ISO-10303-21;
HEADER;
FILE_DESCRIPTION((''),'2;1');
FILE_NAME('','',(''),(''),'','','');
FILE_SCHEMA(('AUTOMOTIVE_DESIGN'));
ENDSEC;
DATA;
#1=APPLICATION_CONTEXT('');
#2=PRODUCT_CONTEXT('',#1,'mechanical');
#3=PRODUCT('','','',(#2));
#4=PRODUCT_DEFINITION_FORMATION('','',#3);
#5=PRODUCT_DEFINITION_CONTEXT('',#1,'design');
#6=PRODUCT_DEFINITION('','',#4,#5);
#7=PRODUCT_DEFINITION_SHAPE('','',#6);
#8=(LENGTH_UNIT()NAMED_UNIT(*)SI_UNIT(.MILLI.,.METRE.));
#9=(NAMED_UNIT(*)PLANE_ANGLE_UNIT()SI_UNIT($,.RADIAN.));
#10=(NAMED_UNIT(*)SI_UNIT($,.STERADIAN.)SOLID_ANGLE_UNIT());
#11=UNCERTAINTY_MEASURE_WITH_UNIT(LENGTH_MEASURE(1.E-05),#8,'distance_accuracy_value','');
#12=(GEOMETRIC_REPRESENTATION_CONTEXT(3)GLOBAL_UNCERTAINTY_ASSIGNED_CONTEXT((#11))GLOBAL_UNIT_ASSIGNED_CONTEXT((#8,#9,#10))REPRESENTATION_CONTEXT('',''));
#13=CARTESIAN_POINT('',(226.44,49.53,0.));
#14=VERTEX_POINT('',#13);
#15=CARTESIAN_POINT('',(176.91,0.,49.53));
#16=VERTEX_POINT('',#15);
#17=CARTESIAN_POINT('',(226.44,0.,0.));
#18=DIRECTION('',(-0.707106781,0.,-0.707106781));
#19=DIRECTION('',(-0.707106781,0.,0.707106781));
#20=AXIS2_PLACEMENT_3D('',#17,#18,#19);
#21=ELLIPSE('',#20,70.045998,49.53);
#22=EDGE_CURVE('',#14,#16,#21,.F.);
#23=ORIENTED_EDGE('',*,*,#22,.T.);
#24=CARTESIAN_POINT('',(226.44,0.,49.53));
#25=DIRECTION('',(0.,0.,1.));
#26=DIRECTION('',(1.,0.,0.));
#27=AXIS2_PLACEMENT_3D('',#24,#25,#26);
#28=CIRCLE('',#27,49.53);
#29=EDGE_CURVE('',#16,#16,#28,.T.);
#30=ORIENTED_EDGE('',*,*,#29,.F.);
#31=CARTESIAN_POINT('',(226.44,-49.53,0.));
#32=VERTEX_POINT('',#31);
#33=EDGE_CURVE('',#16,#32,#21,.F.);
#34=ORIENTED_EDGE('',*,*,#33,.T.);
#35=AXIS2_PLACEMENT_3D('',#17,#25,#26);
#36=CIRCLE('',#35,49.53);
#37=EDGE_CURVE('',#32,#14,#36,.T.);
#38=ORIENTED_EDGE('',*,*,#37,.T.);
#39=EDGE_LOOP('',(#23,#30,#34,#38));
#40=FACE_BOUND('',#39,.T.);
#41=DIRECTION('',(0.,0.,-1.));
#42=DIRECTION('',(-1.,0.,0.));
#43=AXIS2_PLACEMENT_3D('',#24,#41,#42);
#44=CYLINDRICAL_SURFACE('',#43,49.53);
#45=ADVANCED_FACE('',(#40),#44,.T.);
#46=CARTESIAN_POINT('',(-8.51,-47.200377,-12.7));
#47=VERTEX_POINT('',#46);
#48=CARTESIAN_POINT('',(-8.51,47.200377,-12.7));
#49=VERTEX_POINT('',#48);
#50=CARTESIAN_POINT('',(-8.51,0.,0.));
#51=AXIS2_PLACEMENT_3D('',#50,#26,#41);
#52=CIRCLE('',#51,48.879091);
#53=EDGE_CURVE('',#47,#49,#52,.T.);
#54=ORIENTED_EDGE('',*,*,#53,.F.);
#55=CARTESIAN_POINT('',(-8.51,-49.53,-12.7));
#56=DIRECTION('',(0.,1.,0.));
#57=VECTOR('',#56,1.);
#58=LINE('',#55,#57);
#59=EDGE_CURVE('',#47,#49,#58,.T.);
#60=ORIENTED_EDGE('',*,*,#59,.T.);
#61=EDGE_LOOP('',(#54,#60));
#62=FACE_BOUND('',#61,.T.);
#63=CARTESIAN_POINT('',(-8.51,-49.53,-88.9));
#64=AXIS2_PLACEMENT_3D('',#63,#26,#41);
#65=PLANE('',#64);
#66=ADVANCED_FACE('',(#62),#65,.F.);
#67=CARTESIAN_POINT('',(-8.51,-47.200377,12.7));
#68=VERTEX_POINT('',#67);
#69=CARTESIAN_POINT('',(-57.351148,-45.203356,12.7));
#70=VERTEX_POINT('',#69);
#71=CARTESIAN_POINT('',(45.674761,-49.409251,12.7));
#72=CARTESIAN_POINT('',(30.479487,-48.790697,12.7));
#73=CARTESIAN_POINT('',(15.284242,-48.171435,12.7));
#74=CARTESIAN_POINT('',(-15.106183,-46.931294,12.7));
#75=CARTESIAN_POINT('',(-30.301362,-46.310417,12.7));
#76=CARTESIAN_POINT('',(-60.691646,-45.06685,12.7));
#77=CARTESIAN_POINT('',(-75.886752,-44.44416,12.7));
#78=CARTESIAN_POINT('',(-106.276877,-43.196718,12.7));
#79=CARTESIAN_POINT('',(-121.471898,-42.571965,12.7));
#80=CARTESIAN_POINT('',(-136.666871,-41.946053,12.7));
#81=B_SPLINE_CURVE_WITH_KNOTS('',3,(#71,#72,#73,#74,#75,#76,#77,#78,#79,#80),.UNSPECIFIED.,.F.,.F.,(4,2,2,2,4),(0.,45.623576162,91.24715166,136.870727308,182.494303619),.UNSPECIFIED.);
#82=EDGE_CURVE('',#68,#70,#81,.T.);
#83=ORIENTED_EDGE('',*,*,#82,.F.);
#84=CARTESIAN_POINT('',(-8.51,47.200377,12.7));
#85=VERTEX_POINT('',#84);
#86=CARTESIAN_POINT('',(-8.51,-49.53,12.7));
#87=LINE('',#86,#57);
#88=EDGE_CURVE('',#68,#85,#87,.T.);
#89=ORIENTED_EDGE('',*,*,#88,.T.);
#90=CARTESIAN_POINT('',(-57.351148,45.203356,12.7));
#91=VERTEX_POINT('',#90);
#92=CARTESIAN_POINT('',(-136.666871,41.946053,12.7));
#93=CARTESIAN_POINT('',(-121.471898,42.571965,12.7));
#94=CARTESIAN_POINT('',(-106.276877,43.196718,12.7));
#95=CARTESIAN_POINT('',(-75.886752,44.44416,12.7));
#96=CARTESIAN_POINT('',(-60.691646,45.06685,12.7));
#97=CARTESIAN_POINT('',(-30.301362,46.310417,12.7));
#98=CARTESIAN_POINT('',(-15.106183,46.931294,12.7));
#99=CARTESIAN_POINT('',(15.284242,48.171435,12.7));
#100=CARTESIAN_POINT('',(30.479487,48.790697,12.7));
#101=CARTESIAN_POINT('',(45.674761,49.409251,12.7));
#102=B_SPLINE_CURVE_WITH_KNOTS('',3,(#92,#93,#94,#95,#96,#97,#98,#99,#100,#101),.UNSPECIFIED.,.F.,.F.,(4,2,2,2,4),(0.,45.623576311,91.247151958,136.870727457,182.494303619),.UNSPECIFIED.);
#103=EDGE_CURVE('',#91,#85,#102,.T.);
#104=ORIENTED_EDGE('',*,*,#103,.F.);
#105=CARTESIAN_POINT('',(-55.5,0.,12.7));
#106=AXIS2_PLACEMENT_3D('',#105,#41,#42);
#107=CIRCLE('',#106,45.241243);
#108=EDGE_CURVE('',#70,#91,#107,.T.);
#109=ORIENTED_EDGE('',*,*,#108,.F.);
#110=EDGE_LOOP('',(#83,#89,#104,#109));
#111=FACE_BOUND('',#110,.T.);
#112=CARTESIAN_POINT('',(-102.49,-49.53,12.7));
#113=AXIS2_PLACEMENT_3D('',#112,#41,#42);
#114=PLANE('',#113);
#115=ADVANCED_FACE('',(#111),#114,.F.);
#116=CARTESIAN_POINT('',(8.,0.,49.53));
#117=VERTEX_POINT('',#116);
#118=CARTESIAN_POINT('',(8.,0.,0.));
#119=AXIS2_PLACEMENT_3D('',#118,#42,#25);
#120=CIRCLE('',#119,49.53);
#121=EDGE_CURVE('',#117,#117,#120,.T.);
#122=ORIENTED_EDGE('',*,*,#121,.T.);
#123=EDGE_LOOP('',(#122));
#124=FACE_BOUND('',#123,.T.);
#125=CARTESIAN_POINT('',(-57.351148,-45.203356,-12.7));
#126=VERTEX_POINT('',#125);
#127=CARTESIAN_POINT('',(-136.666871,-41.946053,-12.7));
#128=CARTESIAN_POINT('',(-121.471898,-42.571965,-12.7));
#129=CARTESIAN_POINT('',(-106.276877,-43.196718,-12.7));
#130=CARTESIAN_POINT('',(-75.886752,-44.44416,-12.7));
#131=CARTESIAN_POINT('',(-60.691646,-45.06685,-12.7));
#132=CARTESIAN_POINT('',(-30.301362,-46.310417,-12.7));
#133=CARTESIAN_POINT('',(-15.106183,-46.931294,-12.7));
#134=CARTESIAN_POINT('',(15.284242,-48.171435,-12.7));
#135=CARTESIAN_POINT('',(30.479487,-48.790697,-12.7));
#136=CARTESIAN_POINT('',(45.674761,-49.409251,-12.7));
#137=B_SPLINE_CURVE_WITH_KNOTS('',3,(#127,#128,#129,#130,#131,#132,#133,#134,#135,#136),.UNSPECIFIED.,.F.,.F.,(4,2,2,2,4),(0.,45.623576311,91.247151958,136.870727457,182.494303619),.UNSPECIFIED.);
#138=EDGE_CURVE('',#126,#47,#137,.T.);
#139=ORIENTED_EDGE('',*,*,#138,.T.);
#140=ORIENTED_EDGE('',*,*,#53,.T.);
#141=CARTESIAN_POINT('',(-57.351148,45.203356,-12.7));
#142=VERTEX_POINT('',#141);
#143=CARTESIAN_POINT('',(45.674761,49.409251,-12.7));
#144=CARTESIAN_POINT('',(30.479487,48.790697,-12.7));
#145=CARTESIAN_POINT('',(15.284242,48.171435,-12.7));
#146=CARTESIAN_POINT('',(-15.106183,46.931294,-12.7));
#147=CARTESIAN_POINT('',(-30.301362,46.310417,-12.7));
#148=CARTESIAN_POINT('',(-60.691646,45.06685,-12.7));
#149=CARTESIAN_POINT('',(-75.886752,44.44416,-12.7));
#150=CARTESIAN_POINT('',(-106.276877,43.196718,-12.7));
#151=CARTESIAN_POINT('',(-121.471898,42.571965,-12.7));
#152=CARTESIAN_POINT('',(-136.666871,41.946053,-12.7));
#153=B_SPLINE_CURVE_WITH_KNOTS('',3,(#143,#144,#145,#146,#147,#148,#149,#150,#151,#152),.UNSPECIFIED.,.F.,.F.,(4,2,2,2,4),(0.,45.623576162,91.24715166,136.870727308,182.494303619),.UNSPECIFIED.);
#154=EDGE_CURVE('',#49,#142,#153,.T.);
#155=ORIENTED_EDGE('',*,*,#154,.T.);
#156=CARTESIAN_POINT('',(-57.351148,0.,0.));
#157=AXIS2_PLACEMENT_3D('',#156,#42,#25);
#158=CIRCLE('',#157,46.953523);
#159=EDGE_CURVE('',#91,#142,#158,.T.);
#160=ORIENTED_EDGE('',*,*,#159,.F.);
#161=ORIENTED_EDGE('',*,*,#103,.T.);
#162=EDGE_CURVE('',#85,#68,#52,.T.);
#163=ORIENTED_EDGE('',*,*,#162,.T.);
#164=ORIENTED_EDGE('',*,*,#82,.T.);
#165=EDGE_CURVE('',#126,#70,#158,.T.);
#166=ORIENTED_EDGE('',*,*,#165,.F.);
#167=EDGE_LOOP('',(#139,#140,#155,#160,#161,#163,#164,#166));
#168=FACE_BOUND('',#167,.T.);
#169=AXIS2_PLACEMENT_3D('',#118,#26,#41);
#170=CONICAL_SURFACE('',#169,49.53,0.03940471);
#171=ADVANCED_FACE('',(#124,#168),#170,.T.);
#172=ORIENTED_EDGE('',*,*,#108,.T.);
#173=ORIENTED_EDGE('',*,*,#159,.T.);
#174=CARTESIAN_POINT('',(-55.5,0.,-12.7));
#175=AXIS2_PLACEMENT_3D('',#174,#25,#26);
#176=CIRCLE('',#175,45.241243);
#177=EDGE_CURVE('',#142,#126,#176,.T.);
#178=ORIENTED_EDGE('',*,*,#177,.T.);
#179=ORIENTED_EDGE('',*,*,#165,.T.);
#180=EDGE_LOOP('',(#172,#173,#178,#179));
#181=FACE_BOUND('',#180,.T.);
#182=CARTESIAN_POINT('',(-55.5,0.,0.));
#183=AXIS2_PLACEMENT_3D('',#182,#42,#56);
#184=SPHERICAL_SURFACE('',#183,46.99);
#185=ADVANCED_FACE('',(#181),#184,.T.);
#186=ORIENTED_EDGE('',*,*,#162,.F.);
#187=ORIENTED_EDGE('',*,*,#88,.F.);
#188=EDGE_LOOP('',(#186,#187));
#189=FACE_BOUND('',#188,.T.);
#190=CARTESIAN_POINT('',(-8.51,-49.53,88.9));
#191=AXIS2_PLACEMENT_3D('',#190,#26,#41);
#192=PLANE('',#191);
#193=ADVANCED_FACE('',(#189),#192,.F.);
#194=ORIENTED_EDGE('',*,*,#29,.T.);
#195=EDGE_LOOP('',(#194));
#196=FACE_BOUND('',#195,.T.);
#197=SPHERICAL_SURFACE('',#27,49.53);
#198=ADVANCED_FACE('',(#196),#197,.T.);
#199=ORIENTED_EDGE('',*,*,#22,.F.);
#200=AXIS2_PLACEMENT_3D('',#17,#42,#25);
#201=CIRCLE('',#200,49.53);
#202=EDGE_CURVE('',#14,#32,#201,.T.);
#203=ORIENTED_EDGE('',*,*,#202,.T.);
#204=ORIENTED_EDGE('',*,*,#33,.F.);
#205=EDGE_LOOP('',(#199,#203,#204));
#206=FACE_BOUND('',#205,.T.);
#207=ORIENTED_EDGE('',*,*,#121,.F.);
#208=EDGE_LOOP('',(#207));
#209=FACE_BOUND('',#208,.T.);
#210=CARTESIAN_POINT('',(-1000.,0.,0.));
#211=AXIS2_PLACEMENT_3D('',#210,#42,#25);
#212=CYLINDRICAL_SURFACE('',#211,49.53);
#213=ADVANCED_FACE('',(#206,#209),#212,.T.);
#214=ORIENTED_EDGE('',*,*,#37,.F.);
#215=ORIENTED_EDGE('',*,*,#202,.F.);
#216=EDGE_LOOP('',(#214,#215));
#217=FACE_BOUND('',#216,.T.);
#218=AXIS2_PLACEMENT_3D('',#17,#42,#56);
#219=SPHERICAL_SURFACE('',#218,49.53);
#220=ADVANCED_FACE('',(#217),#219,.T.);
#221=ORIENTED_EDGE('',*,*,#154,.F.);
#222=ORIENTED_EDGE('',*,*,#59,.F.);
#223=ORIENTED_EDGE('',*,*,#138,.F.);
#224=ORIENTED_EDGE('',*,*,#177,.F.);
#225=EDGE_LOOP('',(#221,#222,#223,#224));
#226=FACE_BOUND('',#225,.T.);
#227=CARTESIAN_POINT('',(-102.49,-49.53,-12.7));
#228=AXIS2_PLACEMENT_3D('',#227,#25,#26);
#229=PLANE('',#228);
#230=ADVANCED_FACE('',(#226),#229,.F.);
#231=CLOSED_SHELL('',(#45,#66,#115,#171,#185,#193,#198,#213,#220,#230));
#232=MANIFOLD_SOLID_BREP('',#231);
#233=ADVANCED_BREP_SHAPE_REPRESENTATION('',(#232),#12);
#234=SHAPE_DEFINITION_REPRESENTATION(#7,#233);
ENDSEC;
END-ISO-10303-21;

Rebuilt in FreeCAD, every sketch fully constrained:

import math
import FreeCAD as App
import Part
import Sketcher

V = App.Vector
Q = App.Units.Quantity


def add_polygon(sketch, points):
    """Adds a closed chain of lines whose ends are joined by coincident constraints."""
    first, n = sketch.GeometryCount, len(points)
    for a, b in zip(points, points[1:] + points[:1]):
        sketch.addGeometry(Part.LineSegment(App.Vector(*a, 0), App.Vector(*b, 0)), False)
    for i in range(n):
        sketch.addConstraint(Sketcher.Constraint("Coincident", first + i, 2, first + (i + 1) % n, 1))

doc = App.newDocument("Part")
body = doc.addObject("PartDesign::Body", "Body")

# Sketch on XY plane
sketch1 = doc.addObject("Sketcher::SketchObject", "Sketch")
body.addObject(sketch1)
sketch1.AttachmentSupport = (doc.XY_Plane, [""])
sketch1.MapMode = "FlatFace"
sketch1.addGeometry([
    Part.LineSegment(V(8, 49.53, 0), V(-57.351148, 46.953523, 0)),  # 0
    Part.ArcOfCircle(Part.Circle(V(-55.5, 0, 0), V(0, 0, 1), 46.99), math.radians(92.257724), math.radians(180)),  # 1
    Part.LineSegment(V(-102.49, 0, 0), V(275.97, 0, 0)),  # 2
    Part.ArcOfCircle(Part.Circle(V(226.44, 0, 0), V(0, 0, 1), 49.53), math.radians(0), math.radians(90)),  # 3
    Part.LineSegment(V(226.44, 49.53, 0), V(8, 49.53, 0)),  # 4
], False)
sketch1.addConstraint([
    Sketcher.Constraint("Tangent", 0, 2, 1, 1),
    Sketcher.Constraint("Coincident", 1, 2, 2, 1),
    Sketcher.Constraint("Coincident", 2, 2, 3, 1),
    Sketcher.Constraint("Tangent", 3, 2, 4, 1),
    Sketcher.Constraint("Coincident", 4, 2, 0, 1),
    Sketcher.Constraint("Horizontal", 2),
    Sketcher.Constraint("Horizontal", 4),
    Sketcher.Constraint("PointOnObject", 1, 3, -1),
    Sketcher.Constraint("PointOnObject", 3, 3, -1),
    Sketcher.Constraint("PointOnObject", 1, 2, -1),
    Sketcher.Constraint("Radius", 1, Q("1.85 in")),
    Sketcher.Constraint("Radius", 3, Q("1.95 in")),
    Sketcher.Constraint("DistanceX", 2, 1, 2, 2, Q("14.9 in")),
    Sketcher.Constraint("DistanceX", 4, 2, 4, 1, Q("8.6 in")),
    Sketcher.Constraint("DistanceX", 1, 3, -1, 1, Q("55.5 mm")),
])
revolution = doc.addObject("PartDesign::Revolution", "Revolution")
body.addObject(revolution)
revolution.Profile = sketch1
revolution.ReferenceAxis = (sketch1, ["H_Axis"])
revolution.Angle = 360

# Sketch on XZ plane
sketch2 = doc.addObject("Sketcher::SketchObject", "Sketch001")
body.addObject(sketch2)
sketch2.AttachmentSupport = (doc.XZ_Plane, [""])
sketch2.MapMode = "FlatFace"
add_polygon(sketch2, [(-8.51, -88.9), (-102.49, -88.9), (-102.49, -12.7), (-8.51, -12.7)])  # lines 0-3
add_polygon(sketch2, [(-8.51, 12.7), (-102.49, 12.7), (-102.49, 88.9), (-8.51, 88.9)])  # lines 4-7
sketch2.addConstraint([
    Sketcher.Constraint("Horizontal", 0),
    Sketcher.Constraint("Vertical", 1),
    Sketcher.Constraint("Horizontal", 2),
    Sketcher.Constraint("Vertical", 3),
    Sketcher.Constraint("Horizontal", 4),
    Sketcher.Constraint("Vertical", 5),
    Sketcher.Constraint("Horizontal", 6),
    Sketcher.Constraint("Vertical", 7),
    Sketcher.Constraint("Symmetric", 1, 2, 4, 2, -1),
    Sketcher.Constraint("Symmetric", 3, 2, 6, 2, -1),
    Sketcher.Constraint("DistanceY", 1, 1, 1, 2, Q("3 in")),
    Sketcher.Constraint("DistanceX", 0, 2, 0, 1, Q("3.7 in")),
    Sketcher.Constraint("DistanceY", 1, 2, 4, 2, Q("1 in")),
    Sketcher.Constraint("DistanceX", 0, 2, -1, 1, Q("102.49 mm")),
])
pocket1 = doc.addObject("PartDesign::Pocket", "Pocket")
body.addObject(pocket1)
pocket1.Profile = sketch2
pocket1.Type = "ThroughAll"
pocket1.Midplane = True

# Sketch on XY plane
sketch3 = doc.addObject("Sketcher::SketchObject", "Sketch002")
body.addObject(sketch3)
sketch3.AttachmentSupport = (doc.XY_Plane, [""])
sketch3.MapMode = "FlatFace"
sketch3.addGeometry(Part.Circle(V(226.44, 0, 0), V(0, 0, 1), 49.53), False)
sketch3.addConstraint([
    Sketcher.Constraint("PointOnObject", 0, 3, -1),
    Sketcher.Constraint("Diameter", 0, Q("3.9 in")),
    Sketcher.Constraint("DistanceX", -1, 1, 0, 3, Q("226.44 mm")),
])
pad1 = doc.addObject("PartDesign::Pad", "Pad")
body.addObject(pad1)
pad1.Profile = sketch3
pad1.Length = Q("1.95 in")

# Sketch on XY plane
sketch4 = doc.addObject("Sketcher::SketchObject", "Sketch003")
body.addObject(sketch4)
sketch4.AttachmentSupport = (doc.XY_Plane, [""])
sketch4.MapMode = "FlatFace"
sketch4.AttachmentOffset = App.Placement(V(0, 0, 1.95 * 25.4), App.Rotation())
sketch4.addGeometry([
    Part.LineSegment(V(176.91, 0, 0), V(275.97, 0, 0)),
    Part.ArcOfCircle(Part.Circle(V(226.44, 0, 0), V(0, 0, 1), 49.53), math.radians(0), math.radians(180)),
], False)
sketch4.addConstraint([
    Sketcher.Constraint("Coincident", 0, 1, 1, 2),
    Sketcher.Constraint("Coincident", 1, 1, 0, 2),
    Sketcher.Constraint("Horizontal", 0),
    Sketcher.Constraint("PointOnObject", 1, 3, -1),
    Sketcher.Constraint("PointOnObject", 0, 1, -1),
    Sketcher.Constraint("Radius", 1, Q("1.95 in")),
    Sketcher.Constraint("DistanceX", -1, 1, 1, 3, Q("226.44 mm")),
])
revolution2 = doc.addObject("PartDesign::Revolution", "Revolution001")
body.addObject(revolution2)
revolution2.Profile = sketch4
revolution2.ReferenceAxis = (sketch4, ["H_Axis"])
revolution2.Angle = 360

doc.recompute()
